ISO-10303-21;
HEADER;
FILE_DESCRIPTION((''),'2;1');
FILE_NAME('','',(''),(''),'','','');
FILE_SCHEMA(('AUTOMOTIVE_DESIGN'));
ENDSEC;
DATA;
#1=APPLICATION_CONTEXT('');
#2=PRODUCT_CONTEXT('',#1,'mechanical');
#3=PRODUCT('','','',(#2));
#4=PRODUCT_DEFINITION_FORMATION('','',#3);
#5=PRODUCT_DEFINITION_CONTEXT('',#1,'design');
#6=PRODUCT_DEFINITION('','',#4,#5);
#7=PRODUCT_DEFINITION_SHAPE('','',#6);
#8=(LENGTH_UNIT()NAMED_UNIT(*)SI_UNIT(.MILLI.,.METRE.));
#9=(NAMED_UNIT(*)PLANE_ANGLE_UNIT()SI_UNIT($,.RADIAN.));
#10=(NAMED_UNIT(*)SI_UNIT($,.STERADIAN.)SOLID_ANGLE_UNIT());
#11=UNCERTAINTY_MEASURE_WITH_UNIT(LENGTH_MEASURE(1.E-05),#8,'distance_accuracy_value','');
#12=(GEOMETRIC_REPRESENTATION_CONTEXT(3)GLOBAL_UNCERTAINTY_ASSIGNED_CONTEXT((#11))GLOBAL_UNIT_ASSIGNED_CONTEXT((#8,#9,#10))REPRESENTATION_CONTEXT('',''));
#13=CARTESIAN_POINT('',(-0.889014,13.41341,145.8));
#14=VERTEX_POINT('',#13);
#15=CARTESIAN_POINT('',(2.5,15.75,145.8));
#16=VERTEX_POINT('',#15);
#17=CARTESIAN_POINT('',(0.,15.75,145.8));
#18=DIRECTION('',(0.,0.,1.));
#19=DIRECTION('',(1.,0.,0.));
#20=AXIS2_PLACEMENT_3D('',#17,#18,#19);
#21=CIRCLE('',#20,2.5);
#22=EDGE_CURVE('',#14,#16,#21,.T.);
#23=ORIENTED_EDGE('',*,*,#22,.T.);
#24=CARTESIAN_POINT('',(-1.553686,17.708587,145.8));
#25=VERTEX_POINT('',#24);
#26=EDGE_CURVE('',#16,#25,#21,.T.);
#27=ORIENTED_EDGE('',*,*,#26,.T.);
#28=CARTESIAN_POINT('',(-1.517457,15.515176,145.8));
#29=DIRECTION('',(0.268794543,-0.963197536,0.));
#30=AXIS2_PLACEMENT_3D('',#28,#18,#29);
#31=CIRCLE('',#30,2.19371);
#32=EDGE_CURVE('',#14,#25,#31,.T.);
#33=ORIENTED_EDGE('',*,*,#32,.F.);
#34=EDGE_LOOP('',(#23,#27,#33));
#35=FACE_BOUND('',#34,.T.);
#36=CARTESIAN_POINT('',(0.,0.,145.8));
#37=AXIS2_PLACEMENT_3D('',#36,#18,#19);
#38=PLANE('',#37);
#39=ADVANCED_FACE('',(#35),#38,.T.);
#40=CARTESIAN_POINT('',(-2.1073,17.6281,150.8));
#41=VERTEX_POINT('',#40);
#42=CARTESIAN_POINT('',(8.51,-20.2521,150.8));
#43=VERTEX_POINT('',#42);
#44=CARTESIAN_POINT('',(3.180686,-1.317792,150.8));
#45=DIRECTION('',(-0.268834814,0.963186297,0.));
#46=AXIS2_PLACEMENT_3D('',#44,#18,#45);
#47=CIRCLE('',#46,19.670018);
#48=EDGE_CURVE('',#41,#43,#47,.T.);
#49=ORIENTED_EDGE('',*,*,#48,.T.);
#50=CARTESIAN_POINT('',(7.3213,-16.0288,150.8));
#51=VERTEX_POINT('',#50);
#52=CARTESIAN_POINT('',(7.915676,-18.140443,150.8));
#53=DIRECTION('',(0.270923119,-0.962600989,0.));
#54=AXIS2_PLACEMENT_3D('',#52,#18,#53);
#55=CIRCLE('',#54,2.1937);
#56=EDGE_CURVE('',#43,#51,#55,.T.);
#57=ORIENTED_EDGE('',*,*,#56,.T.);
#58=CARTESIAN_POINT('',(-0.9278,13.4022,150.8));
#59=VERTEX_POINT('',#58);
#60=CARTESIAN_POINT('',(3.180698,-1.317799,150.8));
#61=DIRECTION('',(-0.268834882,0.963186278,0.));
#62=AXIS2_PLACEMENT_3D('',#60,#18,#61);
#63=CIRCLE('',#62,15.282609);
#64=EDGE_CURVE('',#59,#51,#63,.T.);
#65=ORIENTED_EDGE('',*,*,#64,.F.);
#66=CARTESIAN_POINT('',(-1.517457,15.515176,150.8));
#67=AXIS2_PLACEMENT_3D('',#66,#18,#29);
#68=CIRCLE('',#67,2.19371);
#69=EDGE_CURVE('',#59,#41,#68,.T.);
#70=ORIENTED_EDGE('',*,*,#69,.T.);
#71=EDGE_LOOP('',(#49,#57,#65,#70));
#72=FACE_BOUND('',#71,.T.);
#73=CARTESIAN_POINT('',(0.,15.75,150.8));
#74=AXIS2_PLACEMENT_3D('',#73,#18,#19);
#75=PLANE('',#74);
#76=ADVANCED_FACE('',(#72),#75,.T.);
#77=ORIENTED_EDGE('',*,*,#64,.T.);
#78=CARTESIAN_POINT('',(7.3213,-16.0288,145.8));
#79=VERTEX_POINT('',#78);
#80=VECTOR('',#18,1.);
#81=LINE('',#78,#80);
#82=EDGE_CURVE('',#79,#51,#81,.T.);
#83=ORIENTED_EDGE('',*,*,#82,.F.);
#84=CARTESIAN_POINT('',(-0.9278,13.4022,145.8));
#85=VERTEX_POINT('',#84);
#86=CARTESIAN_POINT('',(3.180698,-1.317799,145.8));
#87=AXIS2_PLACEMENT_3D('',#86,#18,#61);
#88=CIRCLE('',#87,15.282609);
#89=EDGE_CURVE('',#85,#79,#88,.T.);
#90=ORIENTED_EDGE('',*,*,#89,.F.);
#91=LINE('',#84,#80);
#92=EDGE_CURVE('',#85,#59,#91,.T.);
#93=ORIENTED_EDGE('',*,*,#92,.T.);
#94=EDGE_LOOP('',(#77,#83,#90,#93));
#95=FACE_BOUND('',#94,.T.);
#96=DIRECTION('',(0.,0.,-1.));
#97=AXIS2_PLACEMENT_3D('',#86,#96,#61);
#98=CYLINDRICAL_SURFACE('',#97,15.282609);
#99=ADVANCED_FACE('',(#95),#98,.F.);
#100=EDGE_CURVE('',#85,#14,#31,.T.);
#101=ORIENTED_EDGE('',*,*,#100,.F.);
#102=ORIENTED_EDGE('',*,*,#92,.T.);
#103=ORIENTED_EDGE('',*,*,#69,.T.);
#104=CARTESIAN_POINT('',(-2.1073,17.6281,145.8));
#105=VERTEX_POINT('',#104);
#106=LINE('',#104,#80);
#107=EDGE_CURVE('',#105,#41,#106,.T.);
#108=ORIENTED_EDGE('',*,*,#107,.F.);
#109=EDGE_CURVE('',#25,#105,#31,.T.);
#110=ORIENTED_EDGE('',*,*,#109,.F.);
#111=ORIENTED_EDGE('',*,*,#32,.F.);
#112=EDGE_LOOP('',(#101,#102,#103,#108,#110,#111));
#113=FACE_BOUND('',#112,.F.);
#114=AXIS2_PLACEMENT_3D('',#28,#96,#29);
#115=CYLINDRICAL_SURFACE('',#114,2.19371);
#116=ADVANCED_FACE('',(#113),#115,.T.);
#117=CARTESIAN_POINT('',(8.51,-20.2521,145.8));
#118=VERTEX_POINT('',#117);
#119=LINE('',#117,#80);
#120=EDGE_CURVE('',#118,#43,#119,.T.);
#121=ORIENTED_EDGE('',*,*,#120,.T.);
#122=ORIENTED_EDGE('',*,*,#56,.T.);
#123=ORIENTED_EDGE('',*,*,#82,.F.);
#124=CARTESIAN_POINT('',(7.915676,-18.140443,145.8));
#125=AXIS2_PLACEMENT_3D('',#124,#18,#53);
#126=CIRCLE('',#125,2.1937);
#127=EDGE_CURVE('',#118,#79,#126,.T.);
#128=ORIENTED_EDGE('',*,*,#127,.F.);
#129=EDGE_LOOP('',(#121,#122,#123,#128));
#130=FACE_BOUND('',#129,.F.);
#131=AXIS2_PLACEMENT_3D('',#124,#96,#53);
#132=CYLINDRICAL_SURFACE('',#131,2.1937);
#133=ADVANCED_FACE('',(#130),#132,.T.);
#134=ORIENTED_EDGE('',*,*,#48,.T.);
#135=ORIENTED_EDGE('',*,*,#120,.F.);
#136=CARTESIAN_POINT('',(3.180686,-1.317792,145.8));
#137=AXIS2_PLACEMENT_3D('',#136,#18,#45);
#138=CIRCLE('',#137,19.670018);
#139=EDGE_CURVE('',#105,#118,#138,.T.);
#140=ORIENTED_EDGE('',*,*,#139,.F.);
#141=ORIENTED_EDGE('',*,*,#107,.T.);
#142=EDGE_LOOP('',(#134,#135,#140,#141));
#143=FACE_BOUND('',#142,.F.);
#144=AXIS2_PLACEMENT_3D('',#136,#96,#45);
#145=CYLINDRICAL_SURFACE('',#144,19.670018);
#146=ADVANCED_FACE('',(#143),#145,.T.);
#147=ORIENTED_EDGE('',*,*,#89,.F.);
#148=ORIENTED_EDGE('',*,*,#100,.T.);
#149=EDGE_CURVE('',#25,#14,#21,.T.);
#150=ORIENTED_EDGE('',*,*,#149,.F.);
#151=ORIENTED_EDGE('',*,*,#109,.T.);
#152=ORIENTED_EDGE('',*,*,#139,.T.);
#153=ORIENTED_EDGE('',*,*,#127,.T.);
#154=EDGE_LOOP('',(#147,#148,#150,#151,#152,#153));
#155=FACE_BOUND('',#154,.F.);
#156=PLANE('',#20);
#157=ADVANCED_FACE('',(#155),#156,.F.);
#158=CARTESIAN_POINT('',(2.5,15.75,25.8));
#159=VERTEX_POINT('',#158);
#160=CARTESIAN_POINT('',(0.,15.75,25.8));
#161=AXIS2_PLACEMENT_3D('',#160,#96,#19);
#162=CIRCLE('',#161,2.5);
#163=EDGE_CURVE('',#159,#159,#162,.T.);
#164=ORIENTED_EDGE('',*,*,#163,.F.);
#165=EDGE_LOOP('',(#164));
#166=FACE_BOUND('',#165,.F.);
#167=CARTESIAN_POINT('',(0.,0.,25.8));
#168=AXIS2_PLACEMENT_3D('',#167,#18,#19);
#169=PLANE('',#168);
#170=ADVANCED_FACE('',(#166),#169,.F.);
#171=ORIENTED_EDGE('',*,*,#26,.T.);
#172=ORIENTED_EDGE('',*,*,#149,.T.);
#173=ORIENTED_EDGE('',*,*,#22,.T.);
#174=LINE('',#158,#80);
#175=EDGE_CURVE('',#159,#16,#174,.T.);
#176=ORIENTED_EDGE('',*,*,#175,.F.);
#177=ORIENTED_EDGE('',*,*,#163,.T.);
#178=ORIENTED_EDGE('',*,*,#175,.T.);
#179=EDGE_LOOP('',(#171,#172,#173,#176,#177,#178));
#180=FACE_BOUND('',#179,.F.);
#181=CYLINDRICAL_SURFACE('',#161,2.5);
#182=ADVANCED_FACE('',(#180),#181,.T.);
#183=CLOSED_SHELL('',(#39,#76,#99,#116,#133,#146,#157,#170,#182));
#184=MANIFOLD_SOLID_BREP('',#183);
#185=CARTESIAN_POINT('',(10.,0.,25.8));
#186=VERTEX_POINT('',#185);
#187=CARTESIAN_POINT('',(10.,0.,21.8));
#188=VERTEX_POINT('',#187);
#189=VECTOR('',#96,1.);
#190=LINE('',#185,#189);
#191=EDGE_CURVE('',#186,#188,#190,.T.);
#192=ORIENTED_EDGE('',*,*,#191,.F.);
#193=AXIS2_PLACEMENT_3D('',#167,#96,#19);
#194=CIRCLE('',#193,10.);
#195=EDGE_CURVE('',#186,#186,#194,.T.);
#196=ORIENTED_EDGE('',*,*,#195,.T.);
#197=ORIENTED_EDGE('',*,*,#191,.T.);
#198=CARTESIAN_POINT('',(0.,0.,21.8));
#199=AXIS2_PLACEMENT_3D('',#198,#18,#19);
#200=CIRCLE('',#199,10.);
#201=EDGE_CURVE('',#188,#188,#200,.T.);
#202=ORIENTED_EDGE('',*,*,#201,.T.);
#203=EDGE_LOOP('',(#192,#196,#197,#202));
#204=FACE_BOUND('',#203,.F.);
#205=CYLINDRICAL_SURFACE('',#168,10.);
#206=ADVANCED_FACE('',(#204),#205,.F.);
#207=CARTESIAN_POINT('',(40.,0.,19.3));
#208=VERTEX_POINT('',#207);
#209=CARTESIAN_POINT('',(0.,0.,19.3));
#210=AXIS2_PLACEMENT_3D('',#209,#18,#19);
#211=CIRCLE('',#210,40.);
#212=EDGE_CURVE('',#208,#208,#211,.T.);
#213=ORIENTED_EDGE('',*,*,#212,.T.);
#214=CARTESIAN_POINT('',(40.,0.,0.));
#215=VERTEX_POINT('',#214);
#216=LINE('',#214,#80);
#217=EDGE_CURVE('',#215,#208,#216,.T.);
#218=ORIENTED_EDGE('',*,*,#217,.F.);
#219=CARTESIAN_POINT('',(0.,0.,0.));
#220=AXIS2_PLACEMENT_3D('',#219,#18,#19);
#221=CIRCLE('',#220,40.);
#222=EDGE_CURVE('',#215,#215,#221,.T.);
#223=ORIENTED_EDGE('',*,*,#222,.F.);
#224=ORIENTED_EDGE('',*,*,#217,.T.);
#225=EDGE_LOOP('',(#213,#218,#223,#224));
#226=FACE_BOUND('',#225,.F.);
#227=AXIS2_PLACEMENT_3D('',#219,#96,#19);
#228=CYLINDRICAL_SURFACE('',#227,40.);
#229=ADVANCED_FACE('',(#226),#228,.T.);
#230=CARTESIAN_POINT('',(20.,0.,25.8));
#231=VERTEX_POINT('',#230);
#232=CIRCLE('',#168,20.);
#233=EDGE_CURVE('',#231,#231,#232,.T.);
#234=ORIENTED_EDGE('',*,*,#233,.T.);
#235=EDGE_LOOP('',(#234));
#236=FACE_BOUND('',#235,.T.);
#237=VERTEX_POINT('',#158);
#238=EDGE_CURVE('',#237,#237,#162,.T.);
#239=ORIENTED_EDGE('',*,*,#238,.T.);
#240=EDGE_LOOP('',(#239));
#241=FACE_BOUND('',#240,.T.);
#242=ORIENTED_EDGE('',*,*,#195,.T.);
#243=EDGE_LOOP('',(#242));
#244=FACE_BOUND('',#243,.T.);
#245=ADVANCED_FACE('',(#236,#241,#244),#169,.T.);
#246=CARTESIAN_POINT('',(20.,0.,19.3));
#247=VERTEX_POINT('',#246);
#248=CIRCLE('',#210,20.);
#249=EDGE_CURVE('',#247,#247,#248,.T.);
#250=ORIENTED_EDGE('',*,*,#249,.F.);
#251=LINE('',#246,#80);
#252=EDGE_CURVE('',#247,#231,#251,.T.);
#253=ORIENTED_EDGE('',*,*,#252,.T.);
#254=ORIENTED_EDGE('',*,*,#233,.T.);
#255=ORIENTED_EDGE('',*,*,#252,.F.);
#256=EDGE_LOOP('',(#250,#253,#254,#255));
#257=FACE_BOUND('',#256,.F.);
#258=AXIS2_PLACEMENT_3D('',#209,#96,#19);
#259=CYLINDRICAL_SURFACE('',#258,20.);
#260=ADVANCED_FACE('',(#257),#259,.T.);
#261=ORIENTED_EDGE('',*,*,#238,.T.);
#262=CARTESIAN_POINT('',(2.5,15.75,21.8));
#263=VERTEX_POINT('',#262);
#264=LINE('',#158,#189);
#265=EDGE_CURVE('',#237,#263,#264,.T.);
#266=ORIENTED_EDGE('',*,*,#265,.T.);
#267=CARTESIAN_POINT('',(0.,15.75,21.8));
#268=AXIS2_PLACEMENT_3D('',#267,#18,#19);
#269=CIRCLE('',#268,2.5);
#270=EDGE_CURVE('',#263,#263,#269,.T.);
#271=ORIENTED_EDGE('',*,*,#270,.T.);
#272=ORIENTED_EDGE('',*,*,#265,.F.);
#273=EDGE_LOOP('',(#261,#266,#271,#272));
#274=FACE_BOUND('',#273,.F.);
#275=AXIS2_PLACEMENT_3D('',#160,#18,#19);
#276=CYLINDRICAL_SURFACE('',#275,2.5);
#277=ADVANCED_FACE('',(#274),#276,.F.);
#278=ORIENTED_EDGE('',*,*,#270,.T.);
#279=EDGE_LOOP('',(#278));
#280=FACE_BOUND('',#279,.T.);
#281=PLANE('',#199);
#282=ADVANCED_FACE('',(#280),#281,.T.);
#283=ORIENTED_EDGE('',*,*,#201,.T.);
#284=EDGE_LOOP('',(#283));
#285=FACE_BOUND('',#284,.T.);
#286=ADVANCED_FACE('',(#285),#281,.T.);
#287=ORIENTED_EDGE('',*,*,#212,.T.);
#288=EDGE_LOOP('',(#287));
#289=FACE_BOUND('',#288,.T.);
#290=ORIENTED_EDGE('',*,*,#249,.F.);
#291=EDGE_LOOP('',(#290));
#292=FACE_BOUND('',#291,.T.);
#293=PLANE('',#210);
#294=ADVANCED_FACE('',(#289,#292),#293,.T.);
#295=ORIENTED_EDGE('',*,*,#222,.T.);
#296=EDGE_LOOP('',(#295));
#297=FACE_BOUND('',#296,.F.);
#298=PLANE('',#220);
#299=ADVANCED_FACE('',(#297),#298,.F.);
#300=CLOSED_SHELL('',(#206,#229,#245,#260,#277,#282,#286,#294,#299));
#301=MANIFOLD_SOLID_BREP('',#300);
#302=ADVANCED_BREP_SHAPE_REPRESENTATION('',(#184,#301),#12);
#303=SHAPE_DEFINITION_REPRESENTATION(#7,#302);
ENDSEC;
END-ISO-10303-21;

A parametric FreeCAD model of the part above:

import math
import FreeCAD as App
import Part
import Sketcher

doc = App.newDocument("Part")
body = doc.addObject("PartDesign::Body", "Body")
body.AllowCompound = True

# Sketch on XY plane
sketch1 = body.newObject("Sketcher::SketchObject", "Sketch")
sketch1.AttachmentSupport = (doc.getObject("XY_Plane"), [""])
sketch1.MapMode = "FlatFace"
sketch1.addGeometry(Part.Circle(App.Vector(0, 0, 0), App.Vector(0, 0, 1), 40), False)
sketch1.addConstraint([
    Sketcher.Constraint("Coincident", 0, 3, -1, 1),
    Sketcher.Constraint("Diameter", 0, 80.0),
])
pad1 = body.newObject("PartDesign::Pad", "Pad")
pad1.Profile = sketch1
pad1.Length = 19.3

# Sketch on XY plane
sketch2 = body.newObject("Sketcher::SketchObject", "Sketch001")
sketch2.AttachmentSupport = (doc.getObject("XY_Plane"), [""])
sketch2.MapMode = "FlatFace"
sketch2.AttachmentOffset = App.Placement(App.Vector(0, 0, 19.3), App.Rotation())
sketch2.addGeometry(Part.Circle(App.Vector(0, 0, 0), App.Vector(0, 0, 1), 20), False)
sketch2.addConstraint([
    Sketcher.Constraint("Coincident", 0, 3, -1, 1),
    Sketcher.Constraint("Diameter", 0, 40.0),
])
pad2 = body.newObject("PartDesign::Pad", "Pad001")
pad2.Profile = sketch2
pad2.Length = 6.5

# Sketch on XY plane
sketch3 = body.newObject("Sketcher::SketchObject", "Sketch002")
sketch3.AttachmentSupport = (doc.getObject("XY_Plane"), [""])
sketch3.MapMode = "FlatFace"
sketch3.AttachmentOffset = App.Placement(App.Vector(0, 0, 25.8), App.Rotation())
sketch3.addGeometry([
    Part.Circle(App.Vector(0, 0, 0), App.Vector(0, 0, 1), 10),
    Part.Circle(App.Vector(0, 15.8, 0), App.Vector(0, 0, 1), 2.5),
], False)
sketch3.addConstraint([
    Sketcher.Constraint("Coincident", 0, 3, -1, 1),
    Sketcher.Constraint("PointOnObject", 1, 3, -2),
    Sketcher.Constraint("Diameter", 0, 20.0),
    Sketcher.Constraint("Diameter", 1, 5.0),
    Sketcher.Constraint("DistanceY", -1, 1, 1, 3, 15.75),
])
pocket1 = body.newObject("PartDesign::Pocket", "Pocket")
pocket1.Profile = sketch3
pocket1.Length = 4

# Sketch on XY plane
sketch4 = body.newObject("Sketcher::SketchObject", "Sketch003")
sketch4.AttachmentSupport = (doc.getObject("XY_Plane"), [""])
sketch4.MapMode = "FlatFace"
sketch4.AttachmentOffset = App.Placement(App.Vector(0, 0, 25.8), App.Rotation())
sketch4.addGeometry(Part.Circle(App.Vector(0, 15.8, 0), App.Vector(0, 0, 1), 2.5), False)
sketch4.addConstraint([
    Sketcher.Constraint("PointOnObject", 0, 3, -2),
    Sketcher.Constraint("Diameter", 0, 5.0),
    Sketcher.Constraint("DistanceY", -1, 1, 0, 3, 15.75),
])
pad3 = body.newObject("PartDesign::Pad", "Pad002")
pad3.Profile = sketch4
pad3.Length = 120

# Sketch on XY plane
sketch5 = body.newObject("Sketcher::SketchObject", "Sketch004")
sketch5.AttachmentSupport = (doc.getObject("XY_Plane"), [""])
sketch5.MapMode = "FlatFace"
sketch5.AttachmentOffset = App.Placement(App.Vector(0, 0, 145.8), App.Rotation())
sketch5.addGeometry([
    Part.ArcOfCircle(Part.Circle(App.Vector(-1.5, 15.5, 0), App.Vector(0, 0, 1), 2.2), math.radians(-74), math.radians(106)),
    Part.ArcOfCircle(Part.Circle(App.Vector(3.2, -1.3, 0), App.Vector(0, 0, 1), 19.7), math.radians(106), math.radians(286)),
    Part.ArcOfCircle(Part.Circle(App.Vector(7.9, -18.1, 0), App.Vector(0, 0, 1), 2.2), math.radians(-74), math.radians(106)),
    Part.ArcOfCircle(Part.Circle(App.Vector(3.2, -1.3, 0), App.Vector(0, 0, 1), 15.3), math.radians(106), math.radians(286)),
], False)
sketch5.addConstraint([
    Sketcher.Constraint("Tangent", 0, 2, 1, 1),
    Sketcher.Constraint("Tangent", 1, 2, 2, 1),
    Sketcher.Constraint("Tangent", 2, 2, 3, 2),
    Sketcher.Constraint("Tangent", 3, 1, 0, 1),
    Sketcher.Constraint("Coincident", 3, 3, 1, 3),
    Sketcher.Constraint("Radius", 1, 19.67),
    Sketcher.Constraint("Radius", 0, 2.1937),
    Sketcher.Constraint("DistanceX", -1, 1, 1, 2, 8.51),
    Sketcher.Constraint("DistanceY", 1, 3, 3, 1, 14.72),
    Sketcher.Constraint("DistanceX", 1, 3, 2, 3, 4.735),
    Sketcher.Constraint("DistanceY", -1, 1, 0, 3, 15.5152),
])
pad4 = body.newObject("PartDesign::Pad", "Pad003")
pad4.Profile = sketch5
pad4.Length = 5

doc.recompute()
